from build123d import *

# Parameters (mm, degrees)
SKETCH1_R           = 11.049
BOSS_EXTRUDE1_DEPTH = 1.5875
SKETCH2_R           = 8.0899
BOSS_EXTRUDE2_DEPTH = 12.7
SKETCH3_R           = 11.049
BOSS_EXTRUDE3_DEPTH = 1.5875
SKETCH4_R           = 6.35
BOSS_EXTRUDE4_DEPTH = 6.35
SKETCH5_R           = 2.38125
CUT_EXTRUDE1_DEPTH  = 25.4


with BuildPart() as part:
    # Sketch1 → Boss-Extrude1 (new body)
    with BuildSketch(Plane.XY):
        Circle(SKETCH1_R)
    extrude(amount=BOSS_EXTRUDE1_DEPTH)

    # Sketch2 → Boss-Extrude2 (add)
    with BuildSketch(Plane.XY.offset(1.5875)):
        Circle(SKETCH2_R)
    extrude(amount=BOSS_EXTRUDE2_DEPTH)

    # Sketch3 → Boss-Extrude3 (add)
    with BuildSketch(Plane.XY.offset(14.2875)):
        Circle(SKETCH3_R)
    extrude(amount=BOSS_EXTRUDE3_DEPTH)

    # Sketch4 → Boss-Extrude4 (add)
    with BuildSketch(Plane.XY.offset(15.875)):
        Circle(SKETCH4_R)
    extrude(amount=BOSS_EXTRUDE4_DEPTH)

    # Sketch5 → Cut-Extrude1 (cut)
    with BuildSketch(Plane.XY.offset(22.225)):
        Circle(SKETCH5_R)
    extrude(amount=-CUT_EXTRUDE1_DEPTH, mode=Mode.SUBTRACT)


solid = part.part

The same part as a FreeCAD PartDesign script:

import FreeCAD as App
import Part
import Sketcher

V = App.Vector
Q = App.Units.Quantity

doc = App.newDocument("Part")
body = doc.addObject("PartDesign::Body", "Body")

# Sketch on XY plane
sketch1 = doc.addObject("Sketcher::SketchObject", "Sketch")
body.addObject(sketch1)
sketch1.AttachmentSupport = (doc.XY_Plane, [""])
sketch1.MapMode = "FlatFace"
sketch1.addGeometry(Part.Circle(V(0, 0, 0), V(0, 0, 1), 11), False)
sketch1.addConstraint(Sketcher.Constraint("Coincident", 0, 3, -1, 1))
sketch1.addConstraint(Sketcher.Constraint("Diameter", 0, Q("0.87 in")))
pad1 = doc.addObject("PartDesign::Pad", "Pad")
body.addObject(pad1)
pad1.Profile = sketch1
pad1.Length = Q("0.0625 in")

# Sketch on XY plane
sketch2 = doc.addObject("Sketcher::SketchObject", "Sketch001")
body.addObject(sketch2)
sketch2.AttachmentSupport = (doc.XY_Plane, [""])
sketch2.MapMode = "FlatFace"
sketch2.AttachmentOffset = App.Placement(V(0, 0, 0.0625 * 25.4), App.Rotation())
sketch2.addGeometry(Part.Circle(V(0, 0, 0), V(0, 0, 1), 8), False)
sketch2.addConstraint(Sketcher.Constraint("Coincident", 0, 3, -1, 1))
sketch2.addConstraint(Sketcher.Constraint("Diameter", 0, Q("0.637 in")))
pad2 = doc.addObject("PartDesign::Pad", "Pad001")
body.addObject(pad2)
pad2.Profile = sketch2
pad2.Length = Q("0.5 in")

# Sketch on XY plane
sketch3 = doc.addObject("Sketcher::SketchObject", "Sketch002")
body.addObject(sketch3)
sketch3.AttachmentSupport = (doc.XY_Plane, [""])
sketch3.MapMode = "FlatFace"
sketch3.AttachmentOffset = App.Placement(V(0, 0, 0.5625 * 25.4), App.Rotation())
sketch3.addGeometry(Part.Circle(V(0, 0, 0), V(0, 0, 1), 11), False)
sketch3.addConstraint(Sketcher.Constraint("Coincident", 0, 3, -1, 1))
sketch3.addConstraint(Sketcher.Constraint("Diameter", 0, Q("0.87 in")))
pad3 = doc.addObject("PartDesign::Pad", "Pad002")
body.addObject(pad3)
pad3.Profile = sketch3
pad3.Length = Q("0.0625 in")

# Sketch on XY plane
sketch4 = doc.addObject("Sketcher::SketchObject", "Sketch003")
body.addObject(sketch4)
sketch4.AttachmentSupport = (doc.XY_Plane, [""])
sketch4.MapMode = "FlatFace"
sketch4.AttachmentOffset = App.Placement(V(0, 0, 0.625 * 25.4), App.Rotation())
sketch4.addGeometry(Part.Circle(V(0, 0, 0), V(0, 0, 1), 6), False)
sketch4.addConstraint(Sketcher.Constraint("Coincident", 0, 3, -1, 1))
sketch4.addConstraint(Sketcher.Constraint("Diameter", 0, Q("0.5 in")))
pad4 = doc.addObject("PartDesign::Pad", "Pad003")
body.addObject(pad4)
pad4.Profile = sketch4
pad4.Length = Q("0.25 in")

# Sketch on XY plane
sketch5 = doc.addObject("Sketcher::SketchObject", "Sketch004")
body.addObject(sketch5)
sketch5.AttachmentSupport = (doc.XY_Plane, [""])
sketch5.MapMode = "FlatFace"
sketch5.AttachmentOffset = App.Placement(V(0, 0, 0.875 * 25.4), App.Rotation())
sketch5.addGeometry(Part.Circle(V(0, 0, 0), V(0, 0, 1), 2.4), False)
sketch5.addConstraint(Sketcher.Constraint("Coincident", 0, 3, -1, 1))
sketch5.addConstraint(Sketcher.Constraint("Diameter", 0, Q("0.1875 in")))
pocket1 = doc.addObject("PartDesign::Pocket", "Pocket")
body.addObject(pocket1)
pocket1.Profile = sketch5
pocket1.Length = Q("1 in")

doc.recompute()
